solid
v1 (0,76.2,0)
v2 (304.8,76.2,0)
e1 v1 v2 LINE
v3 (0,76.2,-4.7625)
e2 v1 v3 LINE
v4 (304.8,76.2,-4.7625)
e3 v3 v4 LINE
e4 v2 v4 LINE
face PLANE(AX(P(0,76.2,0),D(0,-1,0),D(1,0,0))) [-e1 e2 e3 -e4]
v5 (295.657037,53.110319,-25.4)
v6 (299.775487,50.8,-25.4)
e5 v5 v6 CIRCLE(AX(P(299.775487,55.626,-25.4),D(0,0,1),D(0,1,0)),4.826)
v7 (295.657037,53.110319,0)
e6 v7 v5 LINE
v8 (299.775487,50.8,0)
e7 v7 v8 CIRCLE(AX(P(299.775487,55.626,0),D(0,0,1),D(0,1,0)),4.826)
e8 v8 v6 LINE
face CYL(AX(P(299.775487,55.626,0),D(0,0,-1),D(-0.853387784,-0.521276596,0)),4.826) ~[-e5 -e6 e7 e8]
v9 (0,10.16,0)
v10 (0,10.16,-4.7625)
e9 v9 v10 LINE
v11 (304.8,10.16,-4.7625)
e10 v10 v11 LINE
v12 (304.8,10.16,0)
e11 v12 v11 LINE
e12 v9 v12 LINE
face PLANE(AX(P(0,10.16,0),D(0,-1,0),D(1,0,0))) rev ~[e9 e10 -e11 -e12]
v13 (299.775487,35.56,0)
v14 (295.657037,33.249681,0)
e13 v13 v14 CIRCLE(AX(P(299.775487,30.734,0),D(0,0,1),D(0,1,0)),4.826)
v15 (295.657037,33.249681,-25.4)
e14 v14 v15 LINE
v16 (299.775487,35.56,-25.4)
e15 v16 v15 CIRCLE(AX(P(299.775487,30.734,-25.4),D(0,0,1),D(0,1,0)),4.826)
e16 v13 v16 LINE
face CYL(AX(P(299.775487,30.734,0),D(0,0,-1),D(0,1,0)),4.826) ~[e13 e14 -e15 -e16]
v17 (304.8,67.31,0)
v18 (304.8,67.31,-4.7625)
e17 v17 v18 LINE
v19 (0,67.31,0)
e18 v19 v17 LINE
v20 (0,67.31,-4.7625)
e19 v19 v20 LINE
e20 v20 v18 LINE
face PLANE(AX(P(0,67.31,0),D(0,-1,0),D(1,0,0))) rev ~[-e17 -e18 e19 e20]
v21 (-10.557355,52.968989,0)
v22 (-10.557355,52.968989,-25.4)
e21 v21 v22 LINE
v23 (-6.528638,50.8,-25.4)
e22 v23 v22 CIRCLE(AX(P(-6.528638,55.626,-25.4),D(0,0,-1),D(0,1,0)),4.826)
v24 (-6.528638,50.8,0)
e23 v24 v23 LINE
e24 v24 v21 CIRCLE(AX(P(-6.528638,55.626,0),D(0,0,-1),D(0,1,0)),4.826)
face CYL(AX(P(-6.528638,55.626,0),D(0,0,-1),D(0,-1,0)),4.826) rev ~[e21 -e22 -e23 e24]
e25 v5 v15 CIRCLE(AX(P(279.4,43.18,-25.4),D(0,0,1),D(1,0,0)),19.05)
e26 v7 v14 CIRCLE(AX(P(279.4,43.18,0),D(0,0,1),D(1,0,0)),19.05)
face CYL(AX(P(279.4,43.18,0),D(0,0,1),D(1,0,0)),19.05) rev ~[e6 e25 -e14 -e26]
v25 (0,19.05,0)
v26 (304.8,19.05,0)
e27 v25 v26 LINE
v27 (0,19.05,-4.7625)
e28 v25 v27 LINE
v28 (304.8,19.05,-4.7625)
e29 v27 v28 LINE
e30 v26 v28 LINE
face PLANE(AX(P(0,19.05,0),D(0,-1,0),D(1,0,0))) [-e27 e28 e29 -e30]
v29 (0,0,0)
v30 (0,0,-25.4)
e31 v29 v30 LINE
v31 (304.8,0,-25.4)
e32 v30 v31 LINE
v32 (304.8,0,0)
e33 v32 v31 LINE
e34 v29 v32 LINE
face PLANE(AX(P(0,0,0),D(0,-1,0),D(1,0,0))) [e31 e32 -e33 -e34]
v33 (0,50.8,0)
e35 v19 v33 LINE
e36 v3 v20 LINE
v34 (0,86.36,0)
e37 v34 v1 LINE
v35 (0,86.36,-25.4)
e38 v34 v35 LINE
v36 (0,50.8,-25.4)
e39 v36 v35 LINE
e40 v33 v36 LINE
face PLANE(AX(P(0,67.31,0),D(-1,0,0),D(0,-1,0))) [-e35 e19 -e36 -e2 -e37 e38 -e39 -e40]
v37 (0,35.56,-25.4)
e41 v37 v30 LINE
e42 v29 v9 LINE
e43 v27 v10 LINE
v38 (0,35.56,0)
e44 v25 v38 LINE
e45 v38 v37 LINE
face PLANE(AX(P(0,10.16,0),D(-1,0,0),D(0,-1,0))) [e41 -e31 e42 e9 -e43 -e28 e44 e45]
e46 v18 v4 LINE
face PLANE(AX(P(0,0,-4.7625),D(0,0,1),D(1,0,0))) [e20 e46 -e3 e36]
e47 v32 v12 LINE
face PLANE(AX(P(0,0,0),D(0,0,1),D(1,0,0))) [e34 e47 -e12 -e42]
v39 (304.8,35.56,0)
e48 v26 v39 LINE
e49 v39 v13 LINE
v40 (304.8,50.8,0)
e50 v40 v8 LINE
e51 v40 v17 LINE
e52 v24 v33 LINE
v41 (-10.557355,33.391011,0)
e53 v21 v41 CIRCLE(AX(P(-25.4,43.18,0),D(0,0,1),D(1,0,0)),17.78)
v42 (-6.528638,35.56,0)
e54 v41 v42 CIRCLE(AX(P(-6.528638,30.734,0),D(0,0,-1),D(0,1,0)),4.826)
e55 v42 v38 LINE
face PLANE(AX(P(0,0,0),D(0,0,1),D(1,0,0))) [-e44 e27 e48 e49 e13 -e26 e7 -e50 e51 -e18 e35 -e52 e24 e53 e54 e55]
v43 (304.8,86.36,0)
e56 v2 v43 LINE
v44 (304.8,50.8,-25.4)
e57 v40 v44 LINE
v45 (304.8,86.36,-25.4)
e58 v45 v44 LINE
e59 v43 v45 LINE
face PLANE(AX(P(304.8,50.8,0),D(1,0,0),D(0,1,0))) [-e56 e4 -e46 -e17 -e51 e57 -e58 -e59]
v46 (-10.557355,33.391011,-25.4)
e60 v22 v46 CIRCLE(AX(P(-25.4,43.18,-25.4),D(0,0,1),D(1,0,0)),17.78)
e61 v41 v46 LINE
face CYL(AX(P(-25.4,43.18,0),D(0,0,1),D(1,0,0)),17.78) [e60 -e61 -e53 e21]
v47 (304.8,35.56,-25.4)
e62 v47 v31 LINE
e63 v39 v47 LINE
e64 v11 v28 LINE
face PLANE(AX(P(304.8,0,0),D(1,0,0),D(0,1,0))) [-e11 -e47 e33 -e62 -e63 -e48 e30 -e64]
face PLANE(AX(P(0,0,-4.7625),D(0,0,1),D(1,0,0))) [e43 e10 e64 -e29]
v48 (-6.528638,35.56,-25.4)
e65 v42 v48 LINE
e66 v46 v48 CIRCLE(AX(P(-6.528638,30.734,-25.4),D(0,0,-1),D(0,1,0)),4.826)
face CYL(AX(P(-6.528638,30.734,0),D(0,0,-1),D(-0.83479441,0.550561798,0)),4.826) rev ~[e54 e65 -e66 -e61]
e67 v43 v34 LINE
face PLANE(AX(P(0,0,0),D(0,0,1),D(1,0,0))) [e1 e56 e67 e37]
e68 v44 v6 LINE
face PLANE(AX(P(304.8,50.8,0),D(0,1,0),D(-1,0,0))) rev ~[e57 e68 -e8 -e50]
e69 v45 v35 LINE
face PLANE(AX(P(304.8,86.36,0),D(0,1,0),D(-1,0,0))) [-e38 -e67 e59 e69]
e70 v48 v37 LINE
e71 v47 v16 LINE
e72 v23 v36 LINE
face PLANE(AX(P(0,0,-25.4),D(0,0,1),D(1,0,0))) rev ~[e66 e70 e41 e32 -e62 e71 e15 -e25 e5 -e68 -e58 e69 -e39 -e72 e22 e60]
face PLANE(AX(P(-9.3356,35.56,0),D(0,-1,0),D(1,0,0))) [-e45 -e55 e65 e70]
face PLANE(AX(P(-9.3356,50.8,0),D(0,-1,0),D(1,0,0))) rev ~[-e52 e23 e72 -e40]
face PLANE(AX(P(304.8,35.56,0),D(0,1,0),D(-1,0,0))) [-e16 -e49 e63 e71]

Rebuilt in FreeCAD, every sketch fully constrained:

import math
import FreeCAD as App
import Part
import Sketcher
from FreeCAD import Vector
Q = App.Units.Quantity


def edges_at(feature, points):
    """Names of the edges that pass closest to the given points."""
    edges = feature.Shape.Edges
    near = lambda p: min(range(len(edges)), key=lambda i: edges[i].distToShape(Part.Vertex(*p))[0])
    return sorted({f"Edge{near(p) + 1}" for p in points})


def add_polygon(sketch, points):
    """Adds a closed chain of lines whose ends are joined by coincident constraints."""
    first, n = sketch.GeometryCount, len(points)
    for a, b in zip(points, points[1:] + points[:1]):
        sketch.addGeometry(Part.LineSegment(App.Vector(*a, 0), App.Vector(*b, 0)), False)
    for i in range(n):
        sketch.addConstraint(Sketcher.Constraint("Coincident", first + i, 2, first + (i + 1) % n, 1))

doc = App.newDocument("Part")
body = doc.addObject("PartDesign::Body", "Body")

sketch1 = doc.addObject("Sketcher::SketchObject", "Sketch")
body.addObject(sketch1)
sketch1.AttachmentSupport = (doc.XY_Plane, [""])
sketch1.MapMode = "FlatFace"
sketch1.addGeometry([
    Part.LineSegment(Vector(0, 0, 0), Vector(305, 0, 0)),
    Part.LineSegment(Vector(305, 0, 0), Vector(305, 36, 0)),
    Part.LineSegment(Vector(305, 36, 0), Vector(297, 36, 0)),
    Part.ArcOfCircle(Part.Circle(Vector(279, 43, 0), Vector(0, 0, 1), 19), math.radians(24), math.radians(336)),
    Part.LineSegment(Vector(297, 51, 0), Vector(305, 51, 0)),
    Part.LineSegment(Vector(305, 51, 0), Vector(305, 86, 0)),
    Part.LineSegment(Vector(305, 86, 0), Vector(0, 86, 0)),
    Part.LineSegment(Vector(0, 86, 0), Vector(0, 51, 0)),
    Part.LineSegment(Vector(0, 51, 0), Vector(-9, 51, 0)),
    Part.ArcOfCircle(Part.Circle(Vector(-25, 43, 0), Vector(0, 0, 1), 18), math.radians(25), math.radians(335)),
    Part.LineSegment(Vector(-9, 36, 0), Vector(0, 36, 0)),
    Part.LineSegment(Vector(0, 36, 0), Vector(0, 0, 0)),
], False)
sketch1.addConstraint([
    Sketcher.Constraint("Coincident", 0, 2, 1, 1),
    Sketcher.Constraint("Coincident", 1, 2, 2, 1),
    Sketcher.Constraint("Coincident", 2, 2, 3, 2),
    Sketcher.Constraint("Coincident", 3, 1, 4, 1),
    Sketcher.Constraint("Coincident", 4, 2, 5, 1),
    Sketcher.Constraint("Coincident", 5, 2, 6, 1),
    Sketcher.Constraint("Coincident", 6, 2, 7, 1),
    Sketcher.Constraint("Coincident", 7, 2, 8, 1),
    Sketcher.Constraint("Coincident", 8, 2, 9, 1),
    Sketcher.Constraint("Coincident", 9, 2, 10, 1),
    Sketcher.Constraint("Coincident", 10, 2, 11, 1),
    Sketcher.Constraint("Coincident", 11, 2, 0, 1),
    Sketcher.Constraint("Horizontal", 0),
    Sketcher.Constraint("Vertical", 1),
    Sketcher.Constraint("Horizontal", 2),
    Sketcher.Constraint("Horizontal", 4),
    Sketcher.Constraint("Vertical", 5),
    Sketcher.Constraint("Horizontal", 6),
    Sketcher.Constraint("Vertical", 7),
    Sketcher.Constraint("Horizontal", 8),
    Sketcher.Constraint("Horizontal", 10),
    Sketcher.Constraint("Vertical", 11),
    Sketcher.Constraint("Coincident", 11, 2, -1, 1),
    Sketcher.Constraint("PointOnObject", 6, 2, -2),
    Sketcher.Constraint("Horizontal", 3, 3, 9, 3),
    Sketcher.Constraint("Horizontal", 4, 2, 7, 2),
    Sketcher.Constraint("Horizontal", 2, 2, 9, 2),
    Sketcher.Constraint("Vertical", 2, 2, 3, 1),
    Sketcher.Constraint("Vertical", 1, 2, 4, 2),
    Sketcher.Constraint("Equal", 1, 5),
    Sketcher.Constraint("Radius", 9, Q("0.7 in")),
    Sketcher.Constraint("DistanceX", 0, 1, 0, 2, Q("12 in")),
    Sketcher.Constraint("Radius", 3, Q("0.75 in")),
    Sketcher.Constraint("DistanceY", 1, 1, 1, 2, Q("1.4 in")),
    Sketcher.Constraint("DistanceX", -1, 1, 3, 3, Q("11 in")),
    Sketcher.Constraint("DistanceX", 9, 3, -1, 1, Q("1 in")),
    Sketcher.Constraint("DistanceY", -1, 1, 5, 2, Q("3.4 in")),
])
pad1 = doc.addObject("PartDesign::Pad", "Pad")
body.addObject(pad1)
pad1.Profile = sketch1
pad1.Length = Q("1 in")
pad1.Reversed = True

sketch2 = doc.addObject("Sketcher::SketchObject", "Sketch001")
body.addObject(sketch2)
sketch2.AttachmentSupport = (doc.XY_Plane, [""])
sketch2.MapMode = "FlatFace"
add_polygon(sketch2, [(0, 19), (0, 10), (305, 10), (305, 19)])
add_polygon(sketch2, [(0, 76), (0, 67), (305, 67), (305, 76)])
sketch2.addConstraint([
    Sketcher.Constraint("Vertical", 0),
    Sketcher.Constraint("Horizontal", 1),
    Sketcher.Constraint("Vertical", 2),
    Sketcher.Constraint("Horizontal", 3),
    Sketcher.Constraint("Vertical", 4),
    Sketcher.Constraint("Horizontal", 5),
    Sketcher.Constraint("Vertical", 6),
    Sketcher.Constraint("Horizontal", 7),
    Sketcher.Constraint("PointOnObject", 0, 2, -2),
    Sketcher.Constraint("PointOnObject", 4, 2, -2),
    Sketcher.Constraint("Vertical", 2, 2, 5, 2),
    Sketcher.Constraint("Equal", 2, 4),
    Sketcher.Constraint("DistanceX", 1, 1, 1, 2, Q("12 in")),
    Sketcher.Constraint("DistanceY", 0, 2, 0, 1, Q("0.35 in")),
    Sketcher.Constraint("DistanceY", -1, 1, 0, 2, Q("0.4 in")),
    Sketcher.Constraint("DistanceY", -1, 1, 6, 2, Q("3 in")),
])
pocket1 = doc.addObject("PartDesign::Pocket", "Pocket")
body.addObject(pocket1)
pocket1.Profile = sketch2
pocket1.Length = Q("0.1875 in")
doc.recompute()

fillet = doc.addObject("PartDesign::Fillet", "Fillet")
body.addObject(fillet)
fillet.Base = (pocket1, edges_at(pocket1, [(296.86, 35.56, -12.7)]))
fillet.Radius = Q("0.19 in")
doc.recompute()

fillet2 = doc.addObject("PartDesign::Fillet", "Fillet001")
body.addObject(fillet2)
fillet2.Base = (fillet, edges_at(fillet, [(296.86, 50.8, -12.7)]))
fillet2.Radius = Q("0.19 in")
doc.recompute()

fillet3 = doc.addObject("PartDesign::Fillet", "Fillet002")
body.addObject(fillet3)
fillet3.Base = (fillet2, edges_at(fillet2, [(-9.336, 50.8, -12.7)]))
fillet3.Radius = Q("0.19 in")
doc.recompute()

fillet4 = doc.addObject("PartDesign::Fillet", "Fillet003")
body.addObject(fillet4)
fillet4.Base = (fillet3, edges_at(fillet3, [(-9.336, 35.56, -12.7)]))
fillet4.Radius = Q("0.19 in")

doc.recompute()
